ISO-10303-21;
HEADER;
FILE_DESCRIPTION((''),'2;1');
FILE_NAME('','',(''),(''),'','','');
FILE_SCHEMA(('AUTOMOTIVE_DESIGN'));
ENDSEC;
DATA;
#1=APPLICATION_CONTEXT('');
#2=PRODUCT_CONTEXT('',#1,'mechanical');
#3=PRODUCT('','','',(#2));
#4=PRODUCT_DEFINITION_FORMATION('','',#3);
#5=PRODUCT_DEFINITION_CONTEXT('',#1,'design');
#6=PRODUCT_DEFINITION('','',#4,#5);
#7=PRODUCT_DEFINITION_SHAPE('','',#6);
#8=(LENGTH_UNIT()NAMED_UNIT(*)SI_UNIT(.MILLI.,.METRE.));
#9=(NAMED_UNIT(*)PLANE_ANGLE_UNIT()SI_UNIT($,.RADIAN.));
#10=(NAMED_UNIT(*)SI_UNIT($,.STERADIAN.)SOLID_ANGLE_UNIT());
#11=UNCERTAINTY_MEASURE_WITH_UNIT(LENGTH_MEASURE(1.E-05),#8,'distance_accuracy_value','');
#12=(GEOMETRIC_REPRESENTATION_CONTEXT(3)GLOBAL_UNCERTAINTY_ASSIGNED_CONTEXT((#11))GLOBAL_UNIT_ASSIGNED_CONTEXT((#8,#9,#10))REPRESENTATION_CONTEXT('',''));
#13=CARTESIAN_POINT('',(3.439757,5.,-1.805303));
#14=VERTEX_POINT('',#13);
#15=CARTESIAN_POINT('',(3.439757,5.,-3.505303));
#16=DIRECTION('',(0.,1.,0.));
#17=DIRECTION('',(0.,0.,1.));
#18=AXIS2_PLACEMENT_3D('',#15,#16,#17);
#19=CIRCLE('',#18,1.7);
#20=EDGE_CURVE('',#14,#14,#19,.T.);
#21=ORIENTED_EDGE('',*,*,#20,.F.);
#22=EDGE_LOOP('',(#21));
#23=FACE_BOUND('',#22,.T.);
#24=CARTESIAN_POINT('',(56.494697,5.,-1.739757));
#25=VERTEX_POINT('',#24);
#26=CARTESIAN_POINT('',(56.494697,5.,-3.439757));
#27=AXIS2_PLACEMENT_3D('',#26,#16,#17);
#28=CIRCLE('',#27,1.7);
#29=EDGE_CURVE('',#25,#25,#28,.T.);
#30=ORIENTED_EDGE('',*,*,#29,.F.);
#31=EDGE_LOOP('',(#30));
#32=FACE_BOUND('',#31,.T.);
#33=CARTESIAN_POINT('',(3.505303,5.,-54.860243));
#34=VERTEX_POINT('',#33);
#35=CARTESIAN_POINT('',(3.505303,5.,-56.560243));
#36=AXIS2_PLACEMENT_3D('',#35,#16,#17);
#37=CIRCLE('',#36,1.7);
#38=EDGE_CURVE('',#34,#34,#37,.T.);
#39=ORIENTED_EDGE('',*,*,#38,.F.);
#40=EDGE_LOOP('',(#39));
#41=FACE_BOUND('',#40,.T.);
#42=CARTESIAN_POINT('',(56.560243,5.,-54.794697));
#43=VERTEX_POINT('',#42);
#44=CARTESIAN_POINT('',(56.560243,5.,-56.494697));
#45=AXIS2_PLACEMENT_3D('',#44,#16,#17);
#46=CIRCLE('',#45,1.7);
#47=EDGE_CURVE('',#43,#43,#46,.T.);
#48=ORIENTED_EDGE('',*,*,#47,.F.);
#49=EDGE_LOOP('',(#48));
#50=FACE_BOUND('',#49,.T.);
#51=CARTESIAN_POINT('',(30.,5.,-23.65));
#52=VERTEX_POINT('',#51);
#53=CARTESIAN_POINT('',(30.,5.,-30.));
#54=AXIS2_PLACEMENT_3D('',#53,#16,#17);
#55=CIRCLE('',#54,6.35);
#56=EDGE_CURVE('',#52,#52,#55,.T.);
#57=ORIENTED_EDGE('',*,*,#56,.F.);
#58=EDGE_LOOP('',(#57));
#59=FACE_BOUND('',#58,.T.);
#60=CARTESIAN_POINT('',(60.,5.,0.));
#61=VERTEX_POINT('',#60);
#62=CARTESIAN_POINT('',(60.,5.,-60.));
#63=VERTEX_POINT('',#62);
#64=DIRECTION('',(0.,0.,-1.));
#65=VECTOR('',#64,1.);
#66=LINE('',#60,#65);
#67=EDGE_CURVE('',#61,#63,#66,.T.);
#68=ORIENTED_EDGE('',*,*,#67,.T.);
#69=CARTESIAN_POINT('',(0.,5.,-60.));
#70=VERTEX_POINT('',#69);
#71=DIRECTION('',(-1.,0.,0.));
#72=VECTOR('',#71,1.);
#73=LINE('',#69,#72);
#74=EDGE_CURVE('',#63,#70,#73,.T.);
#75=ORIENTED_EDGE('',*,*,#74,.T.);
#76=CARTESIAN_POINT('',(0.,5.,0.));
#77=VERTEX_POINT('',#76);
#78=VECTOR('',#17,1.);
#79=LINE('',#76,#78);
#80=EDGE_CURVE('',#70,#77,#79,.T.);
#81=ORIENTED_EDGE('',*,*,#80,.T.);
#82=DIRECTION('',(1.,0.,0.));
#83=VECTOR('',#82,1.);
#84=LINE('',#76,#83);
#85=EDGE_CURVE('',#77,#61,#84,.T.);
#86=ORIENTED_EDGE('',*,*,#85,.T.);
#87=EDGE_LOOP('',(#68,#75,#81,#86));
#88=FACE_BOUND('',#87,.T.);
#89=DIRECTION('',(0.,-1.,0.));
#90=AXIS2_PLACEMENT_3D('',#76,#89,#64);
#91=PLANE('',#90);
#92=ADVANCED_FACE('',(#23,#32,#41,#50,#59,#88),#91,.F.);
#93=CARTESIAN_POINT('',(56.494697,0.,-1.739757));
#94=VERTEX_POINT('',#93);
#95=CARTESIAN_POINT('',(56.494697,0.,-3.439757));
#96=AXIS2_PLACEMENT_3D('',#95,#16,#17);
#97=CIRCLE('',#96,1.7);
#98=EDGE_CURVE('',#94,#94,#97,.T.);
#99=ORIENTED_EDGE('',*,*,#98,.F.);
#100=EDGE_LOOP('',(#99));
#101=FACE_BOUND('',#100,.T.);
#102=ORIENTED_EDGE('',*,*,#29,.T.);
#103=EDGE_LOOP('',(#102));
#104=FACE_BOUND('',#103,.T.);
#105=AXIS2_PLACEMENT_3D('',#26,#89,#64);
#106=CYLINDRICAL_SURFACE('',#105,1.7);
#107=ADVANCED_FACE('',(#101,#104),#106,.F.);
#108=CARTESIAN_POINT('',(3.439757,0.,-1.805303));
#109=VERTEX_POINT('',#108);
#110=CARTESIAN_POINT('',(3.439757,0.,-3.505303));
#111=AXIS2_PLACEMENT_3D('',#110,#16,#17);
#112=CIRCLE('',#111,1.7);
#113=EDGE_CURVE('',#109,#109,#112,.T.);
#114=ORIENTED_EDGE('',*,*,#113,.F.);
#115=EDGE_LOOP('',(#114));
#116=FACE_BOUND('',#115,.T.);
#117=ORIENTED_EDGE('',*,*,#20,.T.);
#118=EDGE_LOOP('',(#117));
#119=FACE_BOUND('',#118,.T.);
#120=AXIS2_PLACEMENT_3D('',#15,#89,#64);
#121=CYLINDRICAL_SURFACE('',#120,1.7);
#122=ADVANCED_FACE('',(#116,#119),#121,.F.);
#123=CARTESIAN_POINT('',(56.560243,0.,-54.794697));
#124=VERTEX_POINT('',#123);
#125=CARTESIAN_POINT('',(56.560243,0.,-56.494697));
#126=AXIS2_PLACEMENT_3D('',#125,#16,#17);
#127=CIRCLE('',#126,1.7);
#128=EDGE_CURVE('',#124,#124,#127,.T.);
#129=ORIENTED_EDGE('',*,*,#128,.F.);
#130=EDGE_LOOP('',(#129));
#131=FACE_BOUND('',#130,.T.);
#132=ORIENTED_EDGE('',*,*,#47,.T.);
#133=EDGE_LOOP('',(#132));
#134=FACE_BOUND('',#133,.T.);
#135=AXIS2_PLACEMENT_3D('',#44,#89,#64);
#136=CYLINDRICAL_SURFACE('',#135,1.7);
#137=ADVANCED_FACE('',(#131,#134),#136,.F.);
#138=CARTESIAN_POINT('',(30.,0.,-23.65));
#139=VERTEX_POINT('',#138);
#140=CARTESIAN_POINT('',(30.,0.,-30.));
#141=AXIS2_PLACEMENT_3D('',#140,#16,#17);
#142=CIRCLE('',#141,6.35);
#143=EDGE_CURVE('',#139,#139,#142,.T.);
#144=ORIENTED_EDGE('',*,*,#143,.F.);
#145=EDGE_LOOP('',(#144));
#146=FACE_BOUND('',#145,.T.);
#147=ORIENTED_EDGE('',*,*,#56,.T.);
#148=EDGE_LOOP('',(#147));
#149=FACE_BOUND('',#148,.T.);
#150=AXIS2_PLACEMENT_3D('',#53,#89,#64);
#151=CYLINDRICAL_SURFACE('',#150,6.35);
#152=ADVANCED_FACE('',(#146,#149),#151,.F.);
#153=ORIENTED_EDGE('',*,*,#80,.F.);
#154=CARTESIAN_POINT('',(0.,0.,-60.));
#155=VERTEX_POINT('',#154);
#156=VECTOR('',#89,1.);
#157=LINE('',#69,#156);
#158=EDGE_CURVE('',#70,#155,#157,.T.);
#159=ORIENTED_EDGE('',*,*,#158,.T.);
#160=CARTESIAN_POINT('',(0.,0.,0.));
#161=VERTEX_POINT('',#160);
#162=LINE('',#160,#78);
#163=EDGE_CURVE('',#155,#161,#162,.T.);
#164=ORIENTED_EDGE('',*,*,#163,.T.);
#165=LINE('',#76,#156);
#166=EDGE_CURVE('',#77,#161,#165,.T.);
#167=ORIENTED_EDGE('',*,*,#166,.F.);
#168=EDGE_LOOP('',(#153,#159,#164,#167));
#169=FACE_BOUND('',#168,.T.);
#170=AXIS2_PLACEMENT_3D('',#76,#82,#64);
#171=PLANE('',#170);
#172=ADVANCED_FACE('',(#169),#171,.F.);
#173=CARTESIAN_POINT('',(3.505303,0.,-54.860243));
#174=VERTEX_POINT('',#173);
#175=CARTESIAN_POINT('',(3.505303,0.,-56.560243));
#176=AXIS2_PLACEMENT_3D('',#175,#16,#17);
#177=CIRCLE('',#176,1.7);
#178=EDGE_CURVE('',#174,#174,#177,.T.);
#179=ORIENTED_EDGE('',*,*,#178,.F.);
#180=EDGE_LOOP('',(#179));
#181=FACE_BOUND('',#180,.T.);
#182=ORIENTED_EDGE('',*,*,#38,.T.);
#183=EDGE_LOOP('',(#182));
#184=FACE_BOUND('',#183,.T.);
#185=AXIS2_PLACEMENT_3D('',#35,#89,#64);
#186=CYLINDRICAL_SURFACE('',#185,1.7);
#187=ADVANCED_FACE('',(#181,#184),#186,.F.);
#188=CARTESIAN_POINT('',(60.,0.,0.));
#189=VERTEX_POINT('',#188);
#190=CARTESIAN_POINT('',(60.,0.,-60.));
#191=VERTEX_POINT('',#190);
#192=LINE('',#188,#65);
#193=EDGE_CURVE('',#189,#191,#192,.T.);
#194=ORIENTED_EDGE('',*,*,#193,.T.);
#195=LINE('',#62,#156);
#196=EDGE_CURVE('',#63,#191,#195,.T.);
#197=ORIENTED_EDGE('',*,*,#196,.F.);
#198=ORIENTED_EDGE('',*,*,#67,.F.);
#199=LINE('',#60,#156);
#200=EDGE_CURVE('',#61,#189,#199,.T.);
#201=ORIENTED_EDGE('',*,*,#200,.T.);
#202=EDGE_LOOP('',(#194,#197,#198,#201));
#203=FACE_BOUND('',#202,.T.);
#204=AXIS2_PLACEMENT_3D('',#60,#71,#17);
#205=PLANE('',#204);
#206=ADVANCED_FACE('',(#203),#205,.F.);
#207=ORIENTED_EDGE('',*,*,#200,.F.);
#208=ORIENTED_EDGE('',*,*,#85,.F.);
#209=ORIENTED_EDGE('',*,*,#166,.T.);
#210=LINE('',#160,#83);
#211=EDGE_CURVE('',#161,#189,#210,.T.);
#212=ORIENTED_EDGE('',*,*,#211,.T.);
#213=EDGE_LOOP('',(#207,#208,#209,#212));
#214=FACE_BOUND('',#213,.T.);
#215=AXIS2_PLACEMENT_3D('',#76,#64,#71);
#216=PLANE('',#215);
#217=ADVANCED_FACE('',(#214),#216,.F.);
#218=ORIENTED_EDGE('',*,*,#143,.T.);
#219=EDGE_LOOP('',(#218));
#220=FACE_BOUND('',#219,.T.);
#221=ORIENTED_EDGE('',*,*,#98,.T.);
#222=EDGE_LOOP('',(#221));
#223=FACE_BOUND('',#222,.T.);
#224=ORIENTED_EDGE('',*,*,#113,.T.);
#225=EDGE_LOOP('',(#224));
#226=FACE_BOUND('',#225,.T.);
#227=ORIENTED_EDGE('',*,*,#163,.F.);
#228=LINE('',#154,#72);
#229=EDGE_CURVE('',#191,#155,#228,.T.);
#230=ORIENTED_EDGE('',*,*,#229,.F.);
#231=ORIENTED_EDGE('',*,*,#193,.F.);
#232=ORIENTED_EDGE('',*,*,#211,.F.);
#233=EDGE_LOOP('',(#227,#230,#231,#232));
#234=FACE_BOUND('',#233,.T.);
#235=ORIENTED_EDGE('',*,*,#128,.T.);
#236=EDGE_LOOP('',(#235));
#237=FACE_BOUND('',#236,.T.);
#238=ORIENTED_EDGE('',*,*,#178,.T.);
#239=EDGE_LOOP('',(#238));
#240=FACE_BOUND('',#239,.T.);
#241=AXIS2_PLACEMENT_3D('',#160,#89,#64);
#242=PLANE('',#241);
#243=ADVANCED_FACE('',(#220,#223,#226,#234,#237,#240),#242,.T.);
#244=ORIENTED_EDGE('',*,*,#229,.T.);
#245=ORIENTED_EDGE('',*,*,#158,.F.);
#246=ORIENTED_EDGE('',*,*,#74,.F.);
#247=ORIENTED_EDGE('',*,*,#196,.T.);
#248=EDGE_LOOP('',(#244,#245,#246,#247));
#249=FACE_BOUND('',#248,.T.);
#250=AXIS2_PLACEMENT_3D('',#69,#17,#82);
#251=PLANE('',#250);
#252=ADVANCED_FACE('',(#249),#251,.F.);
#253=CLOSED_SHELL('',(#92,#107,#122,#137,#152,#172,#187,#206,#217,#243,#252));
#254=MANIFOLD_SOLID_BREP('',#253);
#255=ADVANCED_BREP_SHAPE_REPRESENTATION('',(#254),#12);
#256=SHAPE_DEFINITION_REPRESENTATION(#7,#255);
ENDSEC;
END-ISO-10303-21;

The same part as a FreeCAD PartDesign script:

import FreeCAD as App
import Part
import Sketcher

V = App.Vector
Q = App.Units.Quantity


def add_polygon(sketch, points):
    """Adds a closed chain of lines whose ends are joined by coincident constraints."""
    first, n = sketch.GeometryCount, len(points)
    for a, b in zip(points, points[1:] + points[:1]):
        sketch.addGeometry(Part.LineSegment(App.Vector(*a, 0), App.Vector(*b, 0)), False)
    for i in range(n):
        sketch.addConstraint(Sketcher.Constraint("Coincident", first + i, 2, first + (i + 1) % n, 1))

doc = App.newDocument("Part")
body = doc.addObject("PartDesign::Body", "Body")

sketch1 = body.newObject("Sketcher::SketchObject", "Sketch")
sketch1.AttachmentSupport = (doc.getObject("XZ_Plane"), [""])
sketch1.MapMode = "FlatFace"
add_polygon(sketch1, [(0, -60), (0, 0), (60, 0), (60, -60)])
sketch1.addGeometry(Part.Circle(V(3.439757, -3.505303, 0), V(0, 0, 1), 1.7), False)
sketch1.addGeometry(Part.Circle(V(30, -30, 0), V(0, 0, 1), 6.35), False)
sketch1.addGeometry(Part.Circle(V(56.494697, -3.439757, 0), V(0, 0, 1), 1.7), False)
sketch1.addGeometry(Part.Circle(V(3.505303, -56.560243, 0), V(0, 0, 1), 1.7), False)
sketch1.addGeometry(Part.Circle(V(56.560243, -56.494697, 0), V(0, 0, 1), 1.7), False)
sketch1.addConstraint(Sketcher.Constraint("Vertical", 0))
sketch1.addConstraint(Sketcher.Constraint("Horizontal", 1))
sketch1.addConstraint(Sketcher.Constraint("Vertical", 2))
sketch1.addConstraint(Sketcher.Constraint("Horizontal", 3))
sketch1.addConstraint(Sketcher.Constraint("Coincident", 0, 2, -1, 1))
sketch1.addConstraint(Sketcher.Constraint("Equal", 4, 6))
sketch1.addConstraint(Sketcher.Constraint("Equal", 6, 7))
sketch1.addConstraint(Sketcher.Constraint("Equal", 7, 8))
sketch1.addConstraint(Sketcher.Constraint("Equal", 3, 0))
sketch1.addConstraint(Sketcher.Constraint("Diameter", 4, Q("3.4 mm")))
sketch1.addConstraint(Sketcher.Constraint("Diameter", 5, Q("12.7 mm")))
sketch1.addConstraint(Sketcher.Constraint("DistanceX", 1, 1, 1, 2, Q("60 mm")))
sketch1.addConstraint(Sketcher.Constraint("DistanceX", -1, 1, 5, 3, Q("30 mm")))
sketch1.addConstraint(Sketcher.Constraint("DistanceY", 5, 3, -1, 1, Q("30 mm")))
sketch1.addConstraint(Sketcher.Constraint("DistanceX", 4, 3, 6, 3, Q("53.05494 mm")))
sketch1.addConstraint(Sketcher.Constraint("DistanceY", 7, 3, 4, 3, Q("53.05494 mm")))
sketch1.addConstraint(Sketcher.Constraint("DistanceY", 8, 3, 6, 3, Q("53.05494 mm")))
sketch1.addConstraint(Sketcher.Constraint("DistanceX", 7, 3, 8, 3, Q("53.05494 mm")))
sketch1.addConstraint(Sketcher.Constraint("DistanceX", -1, 1, 4, 3, Q("3.439757 mm")))
sketch1.addConstraint(Sketcher.Constraint("DistanceY", 4, 3, -1, 1, Q("3.505303 mm")))
sketch1.addConstraint(Sketcher.Constraint("DistanceY", 6, 3, -1, 1, Q("3.439757 mm")))
sketch1.addConstraint(Sketcher.Constraint("DistanceX", -1, 1, 7, 3, Q("3.505303 mm")))
pad1 = body.newObject("PartDesign::Pad", "Pad")
pad1.Profile = sketch1
pad1.Length = 5
pad1.Reversed = True

doc.recompute()
